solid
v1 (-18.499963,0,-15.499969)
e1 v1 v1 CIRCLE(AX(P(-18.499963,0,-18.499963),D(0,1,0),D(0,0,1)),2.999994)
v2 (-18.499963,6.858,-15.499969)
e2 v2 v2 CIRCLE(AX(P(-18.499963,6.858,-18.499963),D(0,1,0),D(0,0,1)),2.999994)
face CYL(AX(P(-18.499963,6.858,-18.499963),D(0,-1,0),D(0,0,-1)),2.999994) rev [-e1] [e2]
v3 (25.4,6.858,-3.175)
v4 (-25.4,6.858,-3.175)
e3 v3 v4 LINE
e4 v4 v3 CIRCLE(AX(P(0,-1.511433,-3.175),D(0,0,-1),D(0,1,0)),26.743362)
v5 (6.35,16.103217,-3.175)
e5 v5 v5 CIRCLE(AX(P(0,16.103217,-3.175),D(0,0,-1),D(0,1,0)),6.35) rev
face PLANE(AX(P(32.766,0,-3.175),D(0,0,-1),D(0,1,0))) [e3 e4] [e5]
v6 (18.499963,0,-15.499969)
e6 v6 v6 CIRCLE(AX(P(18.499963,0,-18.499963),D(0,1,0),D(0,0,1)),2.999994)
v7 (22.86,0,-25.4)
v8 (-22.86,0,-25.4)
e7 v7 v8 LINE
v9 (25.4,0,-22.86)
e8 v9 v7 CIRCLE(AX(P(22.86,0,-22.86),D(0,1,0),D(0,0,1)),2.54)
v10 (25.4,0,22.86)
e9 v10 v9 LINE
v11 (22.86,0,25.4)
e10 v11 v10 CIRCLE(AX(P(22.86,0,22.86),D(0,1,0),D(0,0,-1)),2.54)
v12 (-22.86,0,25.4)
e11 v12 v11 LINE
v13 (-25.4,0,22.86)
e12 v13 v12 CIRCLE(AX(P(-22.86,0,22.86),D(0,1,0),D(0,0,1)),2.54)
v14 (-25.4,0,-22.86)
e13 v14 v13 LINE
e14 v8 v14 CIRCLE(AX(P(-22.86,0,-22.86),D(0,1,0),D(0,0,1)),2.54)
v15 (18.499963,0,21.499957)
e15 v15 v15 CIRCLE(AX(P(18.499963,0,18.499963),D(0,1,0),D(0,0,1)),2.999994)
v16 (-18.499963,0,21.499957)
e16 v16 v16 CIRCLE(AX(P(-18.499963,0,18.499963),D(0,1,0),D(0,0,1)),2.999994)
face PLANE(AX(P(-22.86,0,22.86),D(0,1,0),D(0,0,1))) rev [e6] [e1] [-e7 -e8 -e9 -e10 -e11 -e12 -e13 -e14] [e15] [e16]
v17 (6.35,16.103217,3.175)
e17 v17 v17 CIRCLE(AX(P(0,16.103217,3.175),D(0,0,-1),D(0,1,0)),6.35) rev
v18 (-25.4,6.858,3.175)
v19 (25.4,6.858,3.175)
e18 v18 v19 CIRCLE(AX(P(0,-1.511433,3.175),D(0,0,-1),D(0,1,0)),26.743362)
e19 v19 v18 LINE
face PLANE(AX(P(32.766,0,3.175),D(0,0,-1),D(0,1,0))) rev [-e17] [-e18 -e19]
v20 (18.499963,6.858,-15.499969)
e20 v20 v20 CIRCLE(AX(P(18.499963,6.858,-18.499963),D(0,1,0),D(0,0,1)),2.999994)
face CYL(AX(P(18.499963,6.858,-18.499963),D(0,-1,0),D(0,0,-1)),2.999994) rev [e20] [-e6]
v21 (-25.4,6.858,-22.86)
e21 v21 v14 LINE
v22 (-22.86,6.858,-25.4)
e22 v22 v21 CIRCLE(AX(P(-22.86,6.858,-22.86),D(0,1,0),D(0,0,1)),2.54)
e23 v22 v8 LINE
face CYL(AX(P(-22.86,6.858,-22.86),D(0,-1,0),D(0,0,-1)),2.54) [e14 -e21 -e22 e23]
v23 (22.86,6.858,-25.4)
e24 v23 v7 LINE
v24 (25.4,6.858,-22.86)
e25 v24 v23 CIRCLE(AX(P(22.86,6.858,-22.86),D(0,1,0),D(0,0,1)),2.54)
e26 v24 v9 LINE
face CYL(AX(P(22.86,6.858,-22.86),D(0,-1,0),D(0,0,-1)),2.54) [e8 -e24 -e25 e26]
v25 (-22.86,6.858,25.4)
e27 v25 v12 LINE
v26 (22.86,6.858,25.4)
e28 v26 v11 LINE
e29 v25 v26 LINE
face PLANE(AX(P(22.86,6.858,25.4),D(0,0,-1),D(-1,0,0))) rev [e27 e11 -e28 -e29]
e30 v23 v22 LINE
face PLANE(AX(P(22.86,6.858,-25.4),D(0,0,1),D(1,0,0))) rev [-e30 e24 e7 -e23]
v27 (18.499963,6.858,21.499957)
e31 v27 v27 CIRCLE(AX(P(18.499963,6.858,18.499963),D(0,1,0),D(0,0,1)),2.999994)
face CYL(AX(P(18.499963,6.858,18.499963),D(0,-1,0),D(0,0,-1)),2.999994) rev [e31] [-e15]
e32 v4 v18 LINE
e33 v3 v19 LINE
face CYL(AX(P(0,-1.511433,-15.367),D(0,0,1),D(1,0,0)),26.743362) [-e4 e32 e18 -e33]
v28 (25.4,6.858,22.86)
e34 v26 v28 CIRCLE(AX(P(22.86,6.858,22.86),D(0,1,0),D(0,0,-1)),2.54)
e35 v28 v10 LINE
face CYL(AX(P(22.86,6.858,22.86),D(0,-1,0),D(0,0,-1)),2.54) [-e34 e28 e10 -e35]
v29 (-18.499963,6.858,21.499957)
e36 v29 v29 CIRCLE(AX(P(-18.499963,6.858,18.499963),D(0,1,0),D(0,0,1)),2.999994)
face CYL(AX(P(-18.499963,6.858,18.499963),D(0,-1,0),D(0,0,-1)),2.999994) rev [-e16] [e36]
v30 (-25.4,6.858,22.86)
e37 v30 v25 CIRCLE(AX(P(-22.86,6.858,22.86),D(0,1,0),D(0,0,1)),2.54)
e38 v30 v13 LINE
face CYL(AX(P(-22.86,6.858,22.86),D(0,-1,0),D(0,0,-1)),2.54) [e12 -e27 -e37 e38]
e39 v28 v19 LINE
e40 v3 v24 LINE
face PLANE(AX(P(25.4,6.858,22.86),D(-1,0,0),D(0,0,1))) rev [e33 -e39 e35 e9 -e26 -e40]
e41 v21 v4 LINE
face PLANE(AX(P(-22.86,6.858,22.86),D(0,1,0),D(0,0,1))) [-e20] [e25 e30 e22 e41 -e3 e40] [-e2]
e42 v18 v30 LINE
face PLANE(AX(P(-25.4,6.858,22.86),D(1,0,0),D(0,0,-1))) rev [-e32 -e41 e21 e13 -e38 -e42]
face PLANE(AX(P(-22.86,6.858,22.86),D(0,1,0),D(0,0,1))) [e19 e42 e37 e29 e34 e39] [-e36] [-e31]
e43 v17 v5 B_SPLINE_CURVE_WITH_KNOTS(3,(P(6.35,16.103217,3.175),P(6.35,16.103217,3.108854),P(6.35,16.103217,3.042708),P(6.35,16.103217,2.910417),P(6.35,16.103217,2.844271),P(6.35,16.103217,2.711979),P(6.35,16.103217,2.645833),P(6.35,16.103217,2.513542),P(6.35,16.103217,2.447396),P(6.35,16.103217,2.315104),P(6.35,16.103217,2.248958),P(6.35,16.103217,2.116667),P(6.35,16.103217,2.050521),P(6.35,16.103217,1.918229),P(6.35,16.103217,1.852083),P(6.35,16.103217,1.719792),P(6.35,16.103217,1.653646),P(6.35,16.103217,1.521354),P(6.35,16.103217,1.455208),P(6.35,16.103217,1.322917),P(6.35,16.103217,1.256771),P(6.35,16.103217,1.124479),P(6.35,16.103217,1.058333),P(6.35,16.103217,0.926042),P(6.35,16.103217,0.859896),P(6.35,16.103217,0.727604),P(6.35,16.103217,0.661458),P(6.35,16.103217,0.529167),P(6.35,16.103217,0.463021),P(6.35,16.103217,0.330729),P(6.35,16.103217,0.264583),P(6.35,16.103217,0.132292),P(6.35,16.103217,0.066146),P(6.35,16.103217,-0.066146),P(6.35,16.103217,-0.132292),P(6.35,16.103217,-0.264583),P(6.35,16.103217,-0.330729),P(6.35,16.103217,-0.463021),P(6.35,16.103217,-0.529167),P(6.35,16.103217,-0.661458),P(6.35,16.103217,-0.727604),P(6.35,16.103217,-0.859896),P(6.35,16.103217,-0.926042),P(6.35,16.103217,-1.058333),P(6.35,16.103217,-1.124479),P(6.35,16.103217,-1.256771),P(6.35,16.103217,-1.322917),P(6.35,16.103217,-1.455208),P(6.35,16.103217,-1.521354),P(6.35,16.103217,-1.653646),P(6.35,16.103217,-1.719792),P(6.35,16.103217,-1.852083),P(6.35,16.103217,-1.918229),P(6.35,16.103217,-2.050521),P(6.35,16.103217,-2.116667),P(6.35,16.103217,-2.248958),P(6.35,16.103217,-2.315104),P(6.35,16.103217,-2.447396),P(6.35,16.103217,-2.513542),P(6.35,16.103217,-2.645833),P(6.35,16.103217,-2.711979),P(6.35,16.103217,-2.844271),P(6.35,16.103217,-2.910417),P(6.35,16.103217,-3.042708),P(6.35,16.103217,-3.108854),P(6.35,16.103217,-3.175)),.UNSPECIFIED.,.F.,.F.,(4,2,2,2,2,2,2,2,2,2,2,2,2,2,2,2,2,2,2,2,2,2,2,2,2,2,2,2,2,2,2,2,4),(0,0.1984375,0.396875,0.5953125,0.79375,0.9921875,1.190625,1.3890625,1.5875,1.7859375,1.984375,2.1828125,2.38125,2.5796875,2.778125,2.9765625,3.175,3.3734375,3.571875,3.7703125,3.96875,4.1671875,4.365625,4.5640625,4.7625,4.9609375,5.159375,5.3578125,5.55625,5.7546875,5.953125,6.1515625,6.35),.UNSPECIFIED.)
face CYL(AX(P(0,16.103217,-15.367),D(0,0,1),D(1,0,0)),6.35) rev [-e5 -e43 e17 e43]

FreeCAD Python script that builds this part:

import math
import FreeCAD as App
import Part
import Sketcher

V = App.Vector
Q = App.Units.Quantity


def add_polygon(sketch, points):
    """Adds a closed chain of lines whose ends are joined by coincident constraints."""
    first, n = sketch.GeometryCount, len(points)
    for a, b in zip(points, points[1:] + points[:1]):
        sketch.addGeometry(Part.LineSegment(App.Vector(*a, 0), App.Vector(*b, 0)), False)
    for i in range(n):
        sketch.addConstraint(Sketcher.Constraint("Coincident", first + i, 2, first + (i + 1) % n, 1))

doc = App.newDocument("Part")
body = doc.addObject("PartDesign::Body", "Body")

# Sketch on XZ plane
sketch1 = body.newObject("Sketcher::SketchObject", "Sketch")
sketch1.AttachmentSupport = (doc.getObject("XZ_Plane"), [""])
sketch1.MapMode = "FlatFace"
sketch1.addGeometry([
    Part.LineSegment(V(-22.86, 25.4, 0), V(22.86, 25.4, 0)),  # 0
    Part.ArcOfCircle(Part.Circle(V(22.86, 22.86, 0), V(0, 0, 1), 2.54), math.radians(0), math.radians(90)),  # 1
    Part.LineSegment(V(25.4, 22.86, 0), V(25.4, -22.86, 0)),  # 2
    Part.ArcOfCircle(Part.Circle(V(22.86, -22.86, 0), V(0, 0, 1), 2.54), math.radians(-90), math.radians(0)),  # 3
    Part.LineSegment(V(22.86, -25.4, 0), V(-22.86, -25.4, 0)),  # 4
    Part.ArcOfCircle(Part.Circle(V(-22.86, -22.86, 0), V(0, 0, 1), 2.54), math.radians(-180), math.radians(-90)),  # 5
    Part.LineSegment(V(-25.4, -22.86, 0), V(-25.4, 22.86, 0)),  # 6
    Part.ArcOfCircle(Part.Circle(V(-22.86, 22.86, 0), V(0, 0, 1), 2.54), math.radians(90), math.radians(180)),  # 7
    Part.Circle(V(18.499963, 18.499963, 0), V(0, 0, 1), 2.999994),  # 8
    Part.Circle(V(-18.499963, 18.499963, 0), V(0, 0, 1), 2.999994),  # 9
    Part.Circle(V(18.499963, -18.499963, 0), V(0, 0, 1), 2.999994),  # 10
    Part.Circle(V(-18.499963, -18.499963, 0), V(0, 0, 1), 2.999994),  # 11
], False)
sketch1.addConstraint([
    Sketcher.Constraint("Tangent", 0, 2, 1, 2),
    Sketcher.Constraint("Tangent", 1, 1, 2, 1),
    Sketcher.Constraint("Tangent", 2, 2, 3, 2),
    Sketcher.Constraint("Tangent", 3, 1, 4, 1),
    Sketcher.Constraint("Tangent", 4, 2, 5, 2),
    Sketcher.Constraint("Tangent", 5, 1, 6, 1),
    Sketcher.Constraint("Tangent", 6, 2, 7, 2),
    Sketcher.Constraint("Tangent", 7, 1, 0, 1),
    Sketcher.Constraint("Horizontal", 0),
    Sketcher.Constraint("Vertical", 2),
    Sketcher.Constraint("Horizontal", 4),
    Sketcher.Constraint("Vertical", 6),
    Sketcher.Constraint("Equal", 1, 3),
    Sketcher.Constraint("Equal", 3, 5),
    Sketcher.Constraint("Equal", 5, 7),
    Sketcher.Constraint("Equal", 8, 9),
    Sketcher.Constraint("Equal", 9, 10),
    Sketcher.Constraint("Equal", 10, 11),
    Sketcher.Constraint("Symmetric", 1, 3, 5, 3, -1, 1),
    Sketcher.Constraint("Symmetric", 9, 3, 10, 3, -1, 1),
    Sketcher.Constraint("Symmetric", 8, 3, 11, 3, -1, 1),
    Sketcher.Constraint("Symmetric", 8, 3, 9, 3, -2),
    Sketcher.Constraint("Equal", 4, 2),
    Sketcher.Constraint("Radius", 1, Q("0.1 in")),
    Sketcher.Constraint("DistanceX", 0, 1, 0, 2, Q("1.8 in")),
    Sketcher.Constraint("Diameter", 8, 5.999988),
    Sketcher.Constraint("DistanceX", -1, 1, 8, 3, 18.499963),
    Sketcher.Constraint("DistanceY", -1, 1, 8, 3, 18.499963),
])
pad1 = body.newObject("PartDesign::Pad", "Pad")
pad1.Profile = sketch1
pad1.Length = Q("0.27 in")
pad1.Reversed = True

# Sketch on XZ plane
sketch2 = body.newObject("Sketcher::SketchObject", "Sketch001")
sketch2.AttachmentSupport = (doc.getObject("XZ_Plane"), [""])
sketch2.MapMode = "FlatFace"
sketch2.AttachmentOffset = App.Placement(V(0, 0, -0.27 * 25.4), App.Rotation())
add_polygon(sketch2, [(-25.4, 9.525), (25.4, 9.525), (25.4, -9.525), (-25.4, -9.525)])  # lines 0-3
sketch2.addConstraint([
    Sketcher.Constraint("Horizontal", 0),
    Sketcher.Constraint("Vertical", 1),
    Sketcher.Constraint("Horizontal", 2),
    Sketcher.Constraint("Vertical", 3),
    Sketcher.Constraint("Symmetric", 0, 2, 2, 2, -1, 1),
    Sketcher.Constraint("DistanceX", 0, 1, 0, 2, Q("2 in")),
    Sketcher.Constraint("DistanceY", 1, 2, 1, 1, Q("0.75 in")),
])
pad2 = body.newObject("PartDesign::Pad", "Pad001")
pad2.Profile = sketch2
pad2.Length = Q("0.98 in")
pad2.Reversed = True

# Sketch on XY plane
sketch3 = body.newObject("Sketcher::SketchObject", "Sketch002")
sketch3.AttachmentSupport = (doc.getObject("XY_Plane"), [""])
sketch3.MapMode = "FlatFace"
sketch3.AttachmentOffset = App.Placement(V(0, 0, 0.375 * 25.4), App.Rotation())
sketch3.addGeometry([
    Part.ArcOfCircle(Part.Circle(V(0, 16.103217, 0), V(0, 0, 1), 6.35), math.radians(0), math.radians(90)),  # 0
    Part.ArcOfCircle(Part.Circle(V(0, 16.103217, 0), V(0, 0, 1), 6.35), math.radians(90), math.radians(270)),  # 1
    Part.ArcOfCircle(Part.Circle(V(0, 16.103217, 0), V(0, 0, 1), 6.35), math.radians(-90), math.radians(0)),  # 2
    Part.LineSegment(V(25.4, 31.75, 0), V(-25.4, 31.75, 0)),  # 3
    Part.LineSegment(V(-25.4, 31.75, 0), V(-25.4, 6.858, 0)),  # 4
    Part.ArcOfCircle(Part.Circle(V(0, -1.511433, 0), V(0, 0, 1), 26.743362), math.radians(90), math.radians(161.762677)),  # 5
    Part.ArcOfCircle(Part.Circle(V(0, -1.511433, 0), V(0, 0, 1), 26.743362), math.radians(18.237323), math.radians(90)),  # 6
    Part.LineSegment(V(25.4, 6.858, 0), V(25.4, 31.75, 0)),  # 7
], False)
sketch3.addConstraint([
    Sketcher.Constraint("Tangent", 0, 2, 1, 1),
    Sketcher.Constraint("Tangent", 1, 2, 2, 1),
    Sketcher.Constraint("Tangent", 2, 2, 0, 1),
    Sketcher.Constraint("Coincident", 3, 2, 4, 1),
    Sketcher.Constraint("Coincident", 4, 2, 5, 2),
    Sketcher.Constraint("Tangent", 5, 1, 6, 2),
    Sketcher.Constraint("Coincident", 6, 1, 7, 1),
    Sketcher.Constraint("Coincident", 7, 2, 3, 1),
    Sketcher.Constraint("Horizontal", 3),
    Sketcher.Constraint("Vertical", 4),
    Sketcher.Constraint("Vertical", 7),
    Sketcher.Constraint("Equal", 5, 6),
    Sketcher.Constraint("Symmetric", 4, 2, 6, 1, -2),
    Sketcher.Constraint("PointOnObject", 0, 3, -2),
    Sketcher.Constraint("PointOnObject", 0, 2, -2),
    Sketcher.Constraint("PointOnObject", 1, 2, -2),
    Sketcher.Constraint("PointOnObject", 5, 1, -2),
    Sketcher.Constraint("Horizontal", 1, 3, 2, 2),
    Sketcher.Constraint("DistanceX", 3, 2, 3, 1, Q("2 in")),
    Sketcher.Constraint("Radius", 0, Q("0.25 in")),
    Sketcher.Constraint("DistanceY", 4, 2, 4, 1, Q("0.98 in")),
    Sketcher.Constraint("DistanceY", -1, 1, 3, 2, Q("1.25 in")),
    Sketcher.Constraint("Radius", 5, 26.743362),
    Sketcher.Constraint("DistanceY", 5, 3, 2, 3, 17.614651),
])
pocket1 = body.newObject("PartDesign::Pocket", "Pocket")
pocket1.Profile = sketch3
pocket1.Length = Q("0.98 in")

# Sketch on YZ plane
sketch4 = body.newObject("Sketcher::SketchObject", "Sketch003")
sketch4.AttachmentSupport = (doc.getObject("YZ_Plane"), [""])
sketch4.MapMode = "FlatFace"
sketch4.AttachmentOffset = App.Placement(V(0, 0, -1 * 25.4), App.Rotation())
add_polygon(sketch4, [(25.231929, -9.525), (6.858, -9.525), (6.858, -3.175), (25.231929, -3.175)])  # lines 0-3
add_polygon(sketch4, [(25.231929, 3.175), (6.858, 3.175), (6.858, 9.525), (25.231929, 9.525)])  # lines 4-7
sketch4.addConstraint([
    Sketcher.Constraint("Horizontal", 0),
    Sketcher.Constraint("Vertical", 1),
    Sketcher.Constraint("Horizontal", 2),
    Sketcher.Constraint("Vertical", 3),
    Sketcher.Constraint("Horizontal", 4),
    Sketcher.Constraint("Vertical", 5),
    Sketcher.Constraint("Horizontal", 6),
    Sketcher.Constraint("Vertical", 7),
    Sketcher.Constraint("Symmetric", 1, 2, 4, 2, -1),
    Sketcher.Constraint("Symmetric", 3, 2, 6, 2, -1),
    Sketcher.Constraint("DistanceY", 1, 1, 1, 2, Q("0.25 in")),
    Sketcher.Constraint("DistanceY", 0, 2, 4, 2, Q("0.5 in")),
    Sketcher.Constraint("DistanceX", -1, 1, 0, 2, Q("0.27 in")),
    Sketcher.Constraint("DistanceX", 0, 2, 0, 1, 18.373929),
])
pocket2 = body.newObject("PartDesign::Pocket", "Pocket001")
pocket2.Profile = sketch4
pocket2.Length = Q("2.29 in")
pocket2.Reversed = True

doc.recompute()
